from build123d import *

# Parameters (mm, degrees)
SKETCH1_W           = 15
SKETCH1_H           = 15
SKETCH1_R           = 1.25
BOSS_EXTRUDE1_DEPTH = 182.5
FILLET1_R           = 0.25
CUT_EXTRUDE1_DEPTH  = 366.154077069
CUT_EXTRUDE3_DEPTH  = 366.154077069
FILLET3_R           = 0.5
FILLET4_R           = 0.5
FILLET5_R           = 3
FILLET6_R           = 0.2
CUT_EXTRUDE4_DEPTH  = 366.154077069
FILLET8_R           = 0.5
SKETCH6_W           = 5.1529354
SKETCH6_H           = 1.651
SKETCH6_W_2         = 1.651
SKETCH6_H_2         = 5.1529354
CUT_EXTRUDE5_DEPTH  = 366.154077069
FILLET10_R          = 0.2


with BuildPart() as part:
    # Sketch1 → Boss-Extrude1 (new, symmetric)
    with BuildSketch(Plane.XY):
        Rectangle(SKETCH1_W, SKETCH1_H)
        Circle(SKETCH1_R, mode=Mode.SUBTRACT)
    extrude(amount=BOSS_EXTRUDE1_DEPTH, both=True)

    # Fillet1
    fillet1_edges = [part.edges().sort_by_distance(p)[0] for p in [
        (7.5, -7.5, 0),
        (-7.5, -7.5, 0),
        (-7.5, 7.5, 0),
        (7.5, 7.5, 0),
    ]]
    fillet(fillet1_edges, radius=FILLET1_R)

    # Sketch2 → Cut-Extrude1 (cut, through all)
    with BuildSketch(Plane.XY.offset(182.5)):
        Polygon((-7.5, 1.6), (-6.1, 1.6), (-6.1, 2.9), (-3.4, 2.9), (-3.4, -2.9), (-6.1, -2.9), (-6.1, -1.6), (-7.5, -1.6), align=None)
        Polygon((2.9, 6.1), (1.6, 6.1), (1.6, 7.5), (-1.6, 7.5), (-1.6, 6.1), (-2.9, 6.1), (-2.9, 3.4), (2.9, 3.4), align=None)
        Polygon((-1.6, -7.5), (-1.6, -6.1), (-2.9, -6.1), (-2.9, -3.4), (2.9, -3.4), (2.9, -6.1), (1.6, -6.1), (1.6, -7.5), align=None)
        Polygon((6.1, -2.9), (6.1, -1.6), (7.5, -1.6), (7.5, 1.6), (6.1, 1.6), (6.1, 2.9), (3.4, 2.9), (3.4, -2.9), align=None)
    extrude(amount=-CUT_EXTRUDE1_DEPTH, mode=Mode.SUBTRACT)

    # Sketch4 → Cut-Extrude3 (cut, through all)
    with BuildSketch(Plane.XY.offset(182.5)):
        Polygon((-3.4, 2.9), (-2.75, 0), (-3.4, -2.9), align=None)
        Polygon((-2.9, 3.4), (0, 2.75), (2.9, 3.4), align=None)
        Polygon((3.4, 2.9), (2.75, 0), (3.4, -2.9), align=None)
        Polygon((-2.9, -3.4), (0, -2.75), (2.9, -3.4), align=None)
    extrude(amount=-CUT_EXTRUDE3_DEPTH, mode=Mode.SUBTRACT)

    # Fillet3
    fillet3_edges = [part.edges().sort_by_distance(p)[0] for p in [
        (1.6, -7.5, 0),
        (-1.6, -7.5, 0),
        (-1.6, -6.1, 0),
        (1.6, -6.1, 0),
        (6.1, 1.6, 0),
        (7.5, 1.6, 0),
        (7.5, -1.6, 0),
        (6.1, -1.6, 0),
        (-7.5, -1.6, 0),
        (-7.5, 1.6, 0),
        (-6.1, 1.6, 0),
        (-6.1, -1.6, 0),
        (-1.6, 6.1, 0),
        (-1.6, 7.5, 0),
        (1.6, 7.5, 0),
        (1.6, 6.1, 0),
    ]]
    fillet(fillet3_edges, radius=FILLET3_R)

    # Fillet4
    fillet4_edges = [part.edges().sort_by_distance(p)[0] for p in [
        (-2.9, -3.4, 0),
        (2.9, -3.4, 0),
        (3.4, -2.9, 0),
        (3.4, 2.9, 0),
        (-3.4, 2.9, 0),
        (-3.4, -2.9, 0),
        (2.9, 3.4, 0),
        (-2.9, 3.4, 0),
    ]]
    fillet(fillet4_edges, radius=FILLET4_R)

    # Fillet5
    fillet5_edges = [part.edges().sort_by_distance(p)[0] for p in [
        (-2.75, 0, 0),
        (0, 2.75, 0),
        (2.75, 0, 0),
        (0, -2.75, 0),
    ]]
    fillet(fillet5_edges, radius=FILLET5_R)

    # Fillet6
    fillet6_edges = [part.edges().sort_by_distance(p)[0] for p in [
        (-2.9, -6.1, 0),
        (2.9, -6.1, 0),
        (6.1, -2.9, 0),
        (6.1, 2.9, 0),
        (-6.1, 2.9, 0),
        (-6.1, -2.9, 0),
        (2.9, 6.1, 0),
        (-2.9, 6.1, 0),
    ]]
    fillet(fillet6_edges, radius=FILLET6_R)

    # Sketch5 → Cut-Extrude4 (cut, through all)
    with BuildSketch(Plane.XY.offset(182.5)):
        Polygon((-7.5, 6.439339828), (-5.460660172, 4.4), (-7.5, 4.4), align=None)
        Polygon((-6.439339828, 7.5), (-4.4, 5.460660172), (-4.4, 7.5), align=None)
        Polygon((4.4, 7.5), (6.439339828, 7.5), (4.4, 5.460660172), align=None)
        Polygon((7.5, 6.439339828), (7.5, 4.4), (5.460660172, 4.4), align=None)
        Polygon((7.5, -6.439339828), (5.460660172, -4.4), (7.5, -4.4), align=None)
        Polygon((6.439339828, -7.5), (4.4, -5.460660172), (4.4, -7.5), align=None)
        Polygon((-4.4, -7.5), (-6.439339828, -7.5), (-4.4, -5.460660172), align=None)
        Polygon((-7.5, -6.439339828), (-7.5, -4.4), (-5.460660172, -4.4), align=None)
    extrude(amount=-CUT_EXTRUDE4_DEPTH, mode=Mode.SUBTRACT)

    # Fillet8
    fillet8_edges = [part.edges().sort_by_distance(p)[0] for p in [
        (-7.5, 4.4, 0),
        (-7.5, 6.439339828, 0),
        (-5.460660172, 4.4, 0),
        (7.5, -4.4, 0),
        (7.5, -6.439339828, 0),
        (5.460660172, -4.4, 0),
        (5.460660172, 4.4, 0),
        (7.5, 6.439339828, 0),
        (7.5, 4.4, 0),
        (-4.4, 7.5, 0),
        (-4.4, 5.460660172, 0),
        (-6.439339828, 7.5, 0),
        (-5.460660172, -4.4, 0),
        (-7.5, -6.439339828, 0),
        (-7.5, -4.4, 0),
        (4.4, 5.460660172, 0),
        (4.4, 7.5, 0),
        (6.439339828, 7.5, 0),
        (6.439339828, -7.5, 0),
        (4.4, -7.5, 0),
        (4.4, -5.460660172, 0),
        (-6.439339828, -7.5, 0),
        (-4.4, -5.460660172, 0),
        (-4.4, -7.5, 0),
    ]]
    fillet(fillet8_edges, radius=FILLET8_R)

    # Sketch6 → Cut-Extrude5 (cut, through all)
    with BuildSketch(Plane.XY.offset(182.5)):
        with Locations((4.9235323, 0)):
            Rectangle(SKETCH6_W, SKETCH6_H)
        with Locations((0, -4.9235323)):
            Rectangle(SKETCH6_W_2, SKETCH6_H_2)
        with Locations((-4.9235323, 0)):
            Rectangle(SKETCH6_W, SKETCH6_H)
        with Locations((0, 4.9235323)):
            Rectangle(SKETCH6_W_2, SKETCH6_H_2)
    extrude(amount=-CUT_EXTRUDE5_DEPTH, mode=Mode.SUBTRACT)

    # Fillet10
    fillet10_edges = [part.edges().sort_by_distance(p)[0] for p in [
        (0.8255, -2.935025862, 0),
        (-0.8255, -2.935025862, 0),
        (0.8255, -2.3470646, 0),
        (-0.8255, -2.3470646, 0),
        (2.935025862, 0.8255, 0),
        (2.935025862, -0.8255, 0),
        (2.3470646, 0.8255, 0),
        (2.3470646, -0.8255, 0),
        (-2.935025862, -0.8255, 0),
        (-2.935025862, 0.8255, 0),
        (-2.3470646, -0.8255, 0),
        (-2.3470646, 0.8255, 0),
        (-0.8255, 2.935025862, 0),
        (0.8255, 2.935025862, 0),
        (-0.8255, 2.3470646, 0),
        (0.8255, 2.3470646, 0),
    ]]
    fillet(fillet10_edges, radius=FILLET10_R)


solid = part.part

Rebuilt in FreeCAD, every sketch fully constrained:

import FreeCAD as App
import Part
import Sketcher
from FreeCAD import Vector


def edges_at(feature, points):
    """Names of the edges that pass closest to the given points."""
    edges = feature.Shape.Edges
    near = lambda p: min(range(len(edges)), key=lambda i: edges[i].distToShape(Part.Vertex(*p))[0])
    return sorted({f"Edge{near(p) + 1}" for p in points})

doc = App.newDocument("Part")
body = doc.addObject("PartDesign::Body", "Body")

# Sketch on XY plane
sketch1 = body.newObject("Sketcher::SketchObject", "Sketch")
sketch1.AttachmentSupport = (doc.getObject("XY_Plane"), [""])
sketch1.MapMode = "FlatFace"
sketch1.addGeometry(Part.LineSegment(Vector(-7.5, 7.5, 0), Vector(-7.5, -7.5, 0)), False)
sketch1.addGeometry(Part.LineSegment(Vector(-7.5, -7.5, 0), Vector(7.5, -7.5, 0)), False)
sketch1.addGeometry(Part.LineSegment(Vector(7.5, -7.5, 0), Vector(7.5, 7.5, 0)), False)
sketch1.addGeometry(Part.LineSegment(Vector(7.5, 7.5, 0), Vector(-7.5, 7.5, 0)), False)
sketch1.addGeometry(Part.Circle(Vector(0, 0, 0), Vector(0, 0, 1), 1.2), False)
sketch1.addConstraint(Sketcher.Constraint("Coincident", 0, 2, 1, 1))
sketch1.addConstraint(Sketcher.Constraint("Coincident", 1, 2, 2, 1))
sketch1.addConstraint(Sketcher.Constraint("Coincident", 2, 2, 3, 1))
sketch1.addConstraint(Sketcher.Constraint("Coincident", 3, 2, 0, 1))
sketch1.addConstraint(Sketcher.Constraint("Vertical", 0))
sketch1.addConstraint(Sketcher.Constraint("Horizontal", 1))
sketch1.addConstraint(Sketcher.Constraint("Vertical", 2))
sketch1.addConstraint(Sketcher.Constraint("Horizontal", 3))
sketch1.addConstraint(Sketcher.Constraint("Coincident", 4, 3, -1, 1))
sketch1.addConstraint(Sketcher.Constraint("Symmetric", 0, 2, 2, 2, -1, 1))
sketch1.addConstraint(Sketcher.Constraint("Equal", 3, 0))
sketch1.addConstraint(Sketcher.Constraint("Diameter", 4, 2.5))
sketch1.addConstraint(Sketcher.Constraint("DistanceX", 1, 1, 1, 2, 15.0))
pad1 = body.newObject("PartDesign::Pad", "Pad")
pad1.Profile = sketch1
pad1.Length = 365
pad1.Midplane = True
doc.recompute()

fillet = body.newObject("PartDesign::Fillet", "Fillet")
fillet.Base = (pad1, edges_at(pad1, [
    (7.5, -7.5, 0),
    (-7.5, -7.5, 0),
    (-7.5, 7.5, 0),
    (7.5, 7.5, 0),
]))
fillet.Radius = 0.25

# Sketch on XY plane
sketch2 = body.newObject("Sketcher::SketchObject", "Sketch001")
sketch2.AttachmentSupport = (doc.getObject("XY_Plane"), [""])
sketch2.MapMode = "FlatFace"
sketch2.AttachmentOffset = App.Placement(Vector(0, 0, 182.5), App.Rotation())
sketch2.addGeometry(Part.LineSegment(Vector(-6.1, 1.6, 0), Vector(-7.5, 1.6, 0)), False)
sketch2.addGeometry(Part.LineSegment(Vector(-7.5, 1.6, 0), Vector(-7.5, -1.6, 0)), False)
sketch2.addGeometry(Part.LineSegment(Vector(-7.5, -1.6, 0), Vector(-6.1, -1.6, 0)), False)
sketch2.addGeometry(Part.LineSegment(Vector(-6.1, -1.6, 0), Vector(-6.1, -2.9, 0)), False)
sketch2.addGeometry(Part.LineSegment(Vector(-6.1, -2.9, 0), Vector(-3.4, -2.9, 0)), False)
sketch2.addGeometry(Part.LineSegment(Vector(-3.4, -2.9, 0), Vector(-3.4, 2.9, 0)), False)
sketch2.addGeometry(Part.LineSegment(Vector(-3.4, 2.9, 0), Vector(-6.1, 2.9, 0)), False)
sketch2.addGeometry(Part.LineSegment(Vector(-6.1, 2.9, 0), Vector(-6.1, 1.6, 0)), False)
sketch2.addGeometry(Part.LineSegment(Vector(2.9, 6.1, 0), Vector(1.6, 6.1, 0)), False)
sketch2.addGeometry(Part.LineSegment(Vector(1.6, 6.1, 0), Vector(1.6, 7.5, 0)), False)
sketch2.addGeometry(Part.LineSegment(Vector(1.6, 7.5, 0), Vector(-1.6, 7.5, 0)), False)
sketch2.addGeometry(Part.LineSegment(Vector(-1.6, 7.5, 0), Vector(-1.6, 6.1, 0)), False)
sketch2.addGeometry(Part.LineSegment(Vector(-1.6, 6.1, 0), Vector(-2.9, 6.1, 0)), False)
sketch2.addGeometry(Part.LineSegment(Vector(-2.9, 6.1, 0), Vector(-2.9, 3.4, 0)), False)
sketch2.addGeometry(Part.LineSegment(Vector(-2.9, 3.4, 0), Vector(2.9, 3.4, 0)), False)
sketch2.addGeometry(Part.LineSegment(Vector(2.9, 3.4, 0), Vector(2.9, 6.1, 0)), False)
sketch2.addGeometry(Part.LineSegment(Vector(-1.6, -6.1, 0), Vector(-1.6, -7.5, 0)), False)
sketch2.addGeometry(Part.LineSegment(Vector(-1.6, -7.5, 0), Vector(1.6, -7.5, 0)), False)
sketch2.addGeometry(Part.LineSegment(Vector(1.6, -7.5, 0), Vector(1.6, -6.1, 0)), False)
sketch2.addGeometry(Part.LineSegment(Vector(1.6, -6.1, 0), Vector(2.9, -6.1, 0)), False)
sketch2.addGeometry(Part.LineSegment(Vector(2.9, -6.1, 0), Vector(2.9, -3.4, 0)), False)
sketch2.addGeometry(Part.LineSegment(Vector(2.9, -3.4, 0), Vector(-2.9, -3.4, 0)), False)
sketch2.addGeometry(Part.LineSegment(Vector(-2.9, -3.4, 0), Vector(-2.9, -6.1, 0)), False)
sketch2.addGeometry(Part.LineSegment(Vector(-2.9, -6.1, 0), Vector(-1.6, -6.1, 0)), False)
sketch2.addGeometry(Part.LineSegment(Vector(6.1, -2.9, 0), Vector(6.1, -1.6, 0)), False)
sketch2.addGeometry(Part.LineSegment(Vector(6.1, -1.6, 0), Vector(7.5, -1.6, 0)), False)
sketch2.addGeometry(Part.LineSegment(Vector(7.5, -1.6, 0), Vector(7.5, 1.6, 0)), False)
sketch2.addGeometry(Part.LineSegment(Vector(7.5, 1.6, 0), Vector(6.1, 1.6, 0)), False)
sketch2.addGeometry(Part.LineSegment(Vector(6.1, 1.6, 0), Vector(6.1, 2.9, 0)), False)
sketch2.addGeometry(Part.LineSegment(Vector(6.1, 2.9, 0), Vector(3.4, 2.9, 0)), False)
sketch2.addGeometry(Part.LineSegment(Vector(3.4, 2.9, 0), Vector(3.4, -2.9, 0)), False)
sketch2.addGeometry(Part.LineSegment(Vector(3.4, -2.9, 0), Vector(6.1, -2.9, 0)), False)
sketch2.addConstraint(Sketcher.Constraint("Coincident", 0, 2, 1, 1))
sketch2.addConstraint(Sketcher.Constraint("Coincident", 1, 2, 2, 1))
sketch2.addConstraint(Sketcher.Constraint("Coincident", 2, 2, 3, 1))
sketch2.addConstraint(Sketcher.Constraint("Coincident", 3, 2, 4, 1))
sketch2.addConstraint(Sketcher.Constraint("Coincident", 4, 2, 5, 1))
sketch2.addConstraint(Sketcher.Constraint("Coincident", 5, 2, 6, 1))
sketch2.addConstraint(Sketcher.Constraint("Coincident", 6, 2, 7, 1))
sketch2.addConstraint(Sketcher.Constraint("Coincident", 7, 2, 0, 1))
sketch2.addConstraint(Sketcher.Constraint("Coincident", 8, 2, 9, 1))
sketch2.addConstraint(Sketcher.Constraint("Coincident", 9, 2, 10, 1))
sketch2.addConstraint(Sketcher.Constraint("Coincident", 10, 2, 11, 1))
sketch2.addConstraint(Sketcher.Constraint("Coincident", 11, 2, 12, 1))
sketch2.addConstraint(Sketcher.Constraint("Coincident", 12, 2, 13, 1))
sketch2.addConstraint(Sketcher.Constraint("Coincident", 13, 2, 14, 1))
sketch2.addConstraint(Sketcher.Constraint("Coincident", 14, 2, 15, 1))
sketch2.addConstraint(Sketcher.Constraint("Coincident", 15, 2, 8, 1))
sketch2.addConstraint(Sketcher.Constraint("Coincident", 16, 2, 17, 1))
sketch2.addConstraint(Sketcher.Constraint("Coincident", 17, 2, 18, 1))
sketch2.addConstraint(Sketcher.Constraint("Coincident", 18, 2, 19, 1))
sketch2.addConstraint(Sketcher.Constraint("Coincident", 19, 2, 20, 1))
sketch2.addConstraint(Sketcher.Constraint("Coincident", 20, 2, 21, 1))
sketch2.addConstraint(Sketcher.Constraint("Coincident", 21, 2, 22, 1))
sketch2.addConstraint(Sketcher.Constraint("Coincident", 22, 2, 23, 1))
sketch2.addConstraint(Sketcher.Constraint("Coincident", 23, 2, 16, 1))
sketch2.addConstraint(Sketcher.Constraint("Coincident", 24, 2, 25, 1))
sketch2.addConstraint(Sketcher.Constraint("Coincident", 25, 2, 26, 1))
sketch2.addConstraint(Sketcher.Constraint("Coincident", 26, 2, 27, 1))
sketch2.addConstraint(Sketcher.Constraint("Coincident", 27, 2, 28, 1))
sketch2.addConstraint(Sketcher.Constraint("Coincident", 28, 2, 29, 1))
sketch2.addConstraint(Sketcher.Constraint("Coincident", 29, 2, 30, 1))
sketch2.addConstraint(Sketcher.Constraint("Coincident", 30, 2, 31, 1))
sketch2.addConstraint(Sketcher.Constraint("Coincident", 31, 2, 24, 1))
sketch2.addConstraint(Sketcher.Constraint("Horizontal", 0))
sketch2.addConstraint(Sketcher.Constraint("Vertical", 1))
sketch2.addConstraint(Sketcher.Constraint("Horizontal", 2))
sketch2.addConstraint(Sketcher.Constraint("Vertical", 3))
sketch2.addConstraint(Sketcher.Constraint("Horizontal", 4))
sketch2.addConstraint(Sketcher.Constraint("Vertical", 5))
sketch2.addConstraint(Sketcher.Constraint("Horizontal", 6))
sketch2.addConstraint(Sketcher.Constraint("Vertical", 7))
sketch2.addConstraint(Sketcher.Constraint("Horizontal", 8))
sketch2.addConstraint(Sketcher.Constraint("Vertical", 9))
sketch2.addConstraint(Sketcher.Constraint("Horizontal", 10))
sketch2.addConstraint(Sketcher.Constraint("Vertical", 11))
sketch2.addConstraint(Sketcher.Constraint("Horizontal", 12))
sketch2.addConstraint(Sketcher.Constraint("Vertical", 13))
sketch2.addConstraint(Sketcher.Constraint("Horizontal", 14))
sketch2.addConstraint(Sketcher.Constraint("Vertical", 15))
sketch2.addConstraint(Sketcher.Constraint("Vertical", 16))
sketch2.addConstraint(Sketcher.Constraint("Horizontal", 17))
sketch2.addConstraint(Sketcher.Constraint("Vertical", 18))
sketch2.addConstraint(Sketcher.Constraint("Horizontal", 19))
sketch2.addConstraint(Sketcher.Constraint("Vertical", 20))
sketch2.addConstraint(Sketcher.Constraint("Horizontal", 21))
sketch2.addConstraint(Sketcher.Constraint("Vertical", 22))
sketch2.addConstraint(Sketcher.Constraint("Horizontal", 23))
sketch2.addConstraint(Sketcher.Constraint("Vertical", 24))
sketch2.addConstraint(Sketcher.Constraint("Horizontal", 25))
sketch2.addConstraint(Sketcher.Constraint("Vertical", 26))
sketch2.addConstraint(Sketcher.Constraint("Horizontal", 27))
sketch2.addConstraint(Sketcher.Constraint("Vertical", 28))
sketch2.addConstraint(Sketcher.Constraint("Horizontal", 29))
sketch2.addConstraint(Sketcher.Constraint("Vertical", 30))
sketch2.addConstraint(Sketcher.Constraint("Horizontal", 31))
sketch2.addConstraint(Sketcher.Constraint("Symmetric", 9, 2, 16, 2, -1, 1))
sketch2.addConstraint(Sketcher.Constraint("Symmetric", 11, 2, 18, 2, -1, 1))
sketch2.addConstraint(Sketcher.Constraint("Symmetric", 13, 2, 20, 2, -1, 1))
sketch2.addConstraint(Sketcher.Constraint("Symmetric", 15, 2, 22, 2, -1, 1))
sketch2.addConstraint(Sketcher.Constraint("Symmetric", 7, 2, 24, 2, -1, 1))
sketch2.addConstraint(Sketcher.Constraint("Symmetric", 1, 2, 26, 2, -1, 1))
sketch2.addConstraint(Sketcher.Constraint("Symmetric", 3, 2, 28, 2, -1, 1))
sketch2.addConstraint(Sketcher.Constraint("Symmetric", 5, 2, 30, 2, -1, 1))
sketch2.addConstraint(Sketcher.Constraint("Symmetric", 8, 2, 11, 2, -2))
sketch2.addConstraint(Sketcher.Constraint("Symmetric", 2, 2, 24, 2, -2))
sketch2.addConstraint(Sketcher.Constraint("Horizontal", 6, 2, 28, 2))
sketch2.addConstraint(Sketcher.Constraint("Vertical", 15, 2, 19, 2))
sketch2.addConstraint(Sketcher.Constraint("Equal", 17, 1))
sketch2.addConstraint(Sketcher.Constraint("Equal", 23, 3))
sketch2.addConstraint(Sketcher.Constraint("Equal", 27, 9))
sketch2.addConstraint(Sketcher.Constraint("Equal", 31, 13))
sketch2.addConstraint(Sketcher.Constraint("DistanceX", 0, 2, 0, 1, 1.4))
sketch2.addConstraint(Sketcher.Constraint("DistanceX", 4, 1, 4, 2, 2.7))
sketch2.addConstraint(Sketcher.Constraint("DistanceX", 8, 2, 8, 1, 1.3))
sketch2.addConstraint(Sketcher.Constraint("DistanceX", 10, 2, 10, 1, 3.2))
sketch2.addConstraint(Sketcher.Constraint("DistanceX", 5, 2, 8, 2, 5.0))
sketch2.addConstraint(Sketcher.Constraint("DistanceY", 4, 2, 8, 2, 9.0))
pocket1 = body.newObject("PartDesign::Pocket", "Pocket")
pocket1.Profile = sketch2
pocket1.Type = "ThroughAll"

# Sketch on XY plane
sketch3 = body.newObject("Sketcher::SketchObject", "Sketch002")
sketch3.AttachmentSupport = (doc.getObject("XY_Plane"), [""])
sketch3.MapMode = "FlatFace"
sketch3.AttachmentOffset = App.Placement(Vector(0, 0, 182.5), App.Rotation())
sketch3.addGeometry(Part.LineSegment(Vector(-2.8, 0, 0), Vector(-3.4, 2.9, 0)), False)
sketch3.addGeometry(Part.LineSegment(Vector(-3.4, 2.9, 0), Vector(-3.4, -2.9, 0)), False)
sketch3.addGeometry(Part.LineSegment(Vector(-3.4, -2.9, 0), Vector(-2.8, 0, 0)), False)
sketch3.addGeometry(Part.LineSegment(Vector(-2.9, 3.4, 0), Vector(0, 2.8, 0)), False)
sketch3.addGeometry(Part.LineSegment(Vector(0, 2.8, 0), Vector(2.9, 3.4, 0)), False)
sketch3.addGeometry(Part.LineSegment(Vector(2.9, 3.4, 0), Vector(-2.9, 3.4, 0)), False)
sketch3.addGeometry(Part.LineSegment(Vector(3.4, 2.9, 0), Vector(2.8, 0, 0)), False)
sketch3.addGeometry(Part.LineSegment(Vector(2.8, 0, 0), Vector(3.4, -2.9, 0)), False)
sketch3.addGeometry(Part.LineSegment(Vector(3.4, -2.9, 0), Vector(3.4, 2.9, 0)), False)
sketch3.addGeometry(Part.LineSegment(Vector(0, -2.8, 0), Vector(-2.9, -3.4, 0)), False)
sketch3.addGeometry(Part.LineSegment(Vector(-2.9, -3.4, 0), Vector(2.9, -3.4, 0)), False)
sketch3.addGeometry(Part.LineSegment(Vector(2.9, -3.4, 0), Vector(0, -2.8, 0)), False)
sketch3.addConstraint(Sketcher.Constraint("Coincident", 0, 2, 1, 1))
sketch3.addConstraint(Sketcher.Constraint("Coincident", 1, 2, 2, 1))
sketch3.addConstraint(Sketcher.Constraint("Coincident", 2, 2, 0, 1))
sketch3.addConstraint(Sketcher.Constraint("Coincident", 3, 2, 4, 1))
sketch3.addConstraint(Sketcher.Constraint("Coincident", 4, 2, 5, 1))
sketch3.addConstraint(Sketcher.Constraint("Coincident", 5, 2, 3, 1))
sketch3.addConstraint(Sketcher.Constraint("Coincident", 6, 2, 7, 1))
sketch3.addConstraint(Sketcher.Constraint("Coincident", 7, 2, 8, 1))
sketch3.addConstraint(Sketcher.Constraint("Coincident", 8, 2, 6, 1))
sketch3.addConstraint(Sketcher.Constraint("Coincident", 9, 2, 10, 1))
sketch3.addConstraint(Sketcher.Constraint("Coincident", 10, 2, 11, 1))
sketch3.addConstraint(Sketcher.Constraint("Coincident", 11, 2, 9, 1))
sketch3.addConstraint(Sketcher.Constraint("Vertical", 1))
sketch3.addConstraint(Sketcher.Constraint("Horizontal", 5))
sketch3.addConstraint(Sketcher.Constraint("Vertical", 8))
sketch3.addConstraint(Sketcher.Constraint("Horizontal", 10))
sketch3.addConstraint(Sketcher.Constraint("Symmetric", 2, 2, 6, 2, -1, 1))
sketch3.addConstraint(Sketcher.Constraint("Symmetric", 0, 2, 7, 2, -1, 1))
sketch3.addConstraint(Sketcher.Constraint("Symmetric", 4, 2, 9, 2, -1, 1))
sketch3.addConstraint(Sketcher.Constraint("Symmetric", 3, 2, 11, 2, -1, 1))
sketch3.addConstraint(Sketcher.Constraint("PointOnObject", 2, 2, -1))
sketch3.addConstraint(Sketcher.Constraint("PointOnObject", 3, 2, -2))
sketch3.addConstraint(Sketcher.Constraint("Perpendicular", 2, 3))
sketch3.addConstraint(Sketcher.Constraint("Perpendicular", 0, 4))
sketch3.addConstraint(Sketcher.Constraint("Perpendicular", 3, 6))
sketch3.addConstraint(Sketcher.Constraint("Perpendicular", 6, 11))
sketch3.addConstraint(Sketcher.Constraint("Horizontal", 1, 2, 7, 2))
sketch3.addConstraint(Sketcher.Constraint("Equal", 10, 1))
sketch3.addConstraint(Sketcher.Constraint("DistanceX", 5, 2, 5, 1, 5.8))
sketch3.addConstraint(Sketcher.Constraint("DistanceX", 0, 2, -1, 1, 3.4))
sketch3.addConstraint(Sketcher.Constraint("DistanceY", -1, 1, 4, 2, 3.4))
sketch3.addConstraint(Sketcher.Constraint("DistanceX", 2, 2, 6, 2, 5.5))
pocket2 = body.newObject("PartDesign::Pocket", "Pocket001")
pocket2.Profile = sketch3
pocket2.Type = "ThroughAll"
doc.recompute()

fillet2 = body.newObject("PartDesign::Fillet", "Fillet001")
fillet2.Base = (pocket2, edges_at(pocket2, [
    (1.6, -7.5, 0),
    (-1.6, -7.5, 0),
    (-1.6, -6.1, 0),
    (1.6, -6.1, 0),
    (6.1, 1.6, 0),
    (7.5, 1.6, 0),
    (7.5, -1.6, 0),
    (6.1, -1.6, 0),
    (-7.5, -1.6, 0),
    (-7.5, 1.6, 0),
    (-6.1, 1.6, 0),
    (-6.1, -1.6, 0),
    (-1.6, 6.1, 0),
    (-1.6, 7.5, 0),
    (1.6, 7.5, 0),
    (1.6, 6.1, 0),
]))
fillet2.Radius = 0.5
doc.recompute()

fillet3 = body.newObject("PartDesign::Fillet", "Fillet002")
fillet3.Base = (fillet2, edges_at(fillet2, [
    (-2.9, -3.4, 0),
    (2.9, -3.4, 0),
    (3.4, -2.9, 0),
    (3.4, 2.9, 0),
    (-3.4, 2.9, 0),
    (-3.4, -2.9, 0),
    (2.9, 3.4, 0),
    (-2.9, 3.4, 0),
]))
fillet3.Radius = 0.5
doc.recompute()

fillet4 = body.newObject("PartDesign::Fillet", "Fillet003")
fillet4.Base = (fillet3, edges_at(fillet3, [
    (-2.75, 0, 0),
    (0, 2.75, 0),
    (2.75, 0, 0),
    (0, -2.75, 0),
]))
fillet4.Radius = 3
doc.recompute()

fillet5 = body.newObject("PartDesign::Fillet", "Fillet004")
fillet5.Base = (fillet4, edges_at(fillet4, [
    (-2.9, -6.1, 0),
    (2.9, -6.1, 0),
    (6.1, -2.9, 0),
    (6.1, 2.9, 0),
    (-6.1, 2.9, 0),
    (-6.1, -2.9, 0),
    (2.9, 6.1, 0),
    (-2.9, 6.1, 0),
]))
fillet5.Radius = 0.2

# Sketch on XY plane
sketch4 = body.newObject("Sketcher::SketchObject", "Sketch003")
sketch4.AttachmentSupport = (doc.getObject("XY_Plane"), [""])
sketch4.MapMode = "FlatFace"
sketch4.AttachmentOffset = App.Placement(Vector(0, 0, 182.5), App.Rotation())
sketch4.addGeometry(Part.LineSegment(Vector(-5.5, 4.4, 0), Vector(-7.5, 6.4, 0)), False)
sketch4.addGeometry(Part.LineSegment(Vector(-7.5, 6.4, 0), Vector(-7.5, 4.4, 0)), False)
sketch4.addGeometry(Part.LineSegment(Vector(-7.5, 4.4, 0), Vector(-5.5, 4.4, 0)), False)
sketch4.addGeometry(Part.LineSegment(Vector(-6.4, 7.5, 0), Vector(-4.4, 5.5, 0)), False)
sketch4.addGeometry(Part.LineSegment(Vector(-4.4, 5.5, 0), Vector(-4.4, 7.5, 0)), False)
sketch4.addGeometry(Part.LineSegment(Vector(-4.4, 7.5, 0), Vector(-6.4, 7.5, 0)), False)
sketch4.addGeometry(Part.LineSegment(Vector(6.4, 7.5, 0), Vector(4.4, 7.5, 0)), False)
sketch4.addGeometry(Part.LineSegment(Vector(4.4, 7.5, 0), Vector(4.4, 5.5, 0)), False)
sketch4.addGeometry(Part.LineSegment(Vector(4.4, 5.5, 0), Vector(6.4, 7.5, 0)), False)
sketch4.addGeometry(Part.LineSegment(Vector(7.5, 4.4, 0), Vector(7.5, 6.4, 0)), False)
sketch4.addGeometry(Part.LineSegment(Vector(7.5, 6.4, 0), Vector(5.5, 4.4, 0)), False)
sketch4.addGeometry(Part.LineSegment(Vector(5.5, 4.4, 0), Vector(7.5, 4.4, 0)), False)
sketch4.addGeometry(Part.LineSegment(Vector(5.5, -4.4, 0), Vector(7.5, -6.4, 0)), False)
sketch4.addGeometry(Part.LineSegment(Vector(7.5, -6.4, 0), Vector(7.5, -4.4, 0)), False)
sketch4.addGeometry(Part.LineSegment(Vector(7.5, -4.4, 0), Vector(5.5, -4.4, 0)), False)
sketch4.addGeometry(Part.LineSegment(Vector(6.4, -7.5, 0), Vector(4.4, -5.5, 0)), False)
sketch4.addGeometry(Part.LineSegment(Vector(4.4, -5.5, 0), Vector(4.4, -7.5, 0)), False)
sketch4.addGeometry(Part.LineSegment(Vector(4.4, -7.5, 0), Vector(6.4, -7.5, 0)), False)
sketch4.addGeometry(Part.LineSegment(Vector(-6.4, -7.5, 0), Vector(-4.4, -7.5, 0)), False)
sketch4.addGeometry(Part.LineSegment(Vector(-4.4, -7.5, 0), Vector(-4.4, -5.5, 0)), False)
sketch4.addGeometry(Part.LineSegment(Vector(-4.4, -5.5, 0), Vector(-6.4, -7.5, 0)), False)
sketch4.addGeometry(Part.LineSegment(Vector(-7.5, -4.4, 0), Vector(-7.5, -6.4, 0)), False)
sketch4.addGeometry(Part.LineSegment(Vector(-7.5, -6.4, 0), Vector(-5.5, -4.4, 0)), False)
sketch4.addGeometry(Part.LineSegment(Vector(-5.5, -4.4, 0), Vector(-7.5, -4.4, 0)), False)
sketch4.addConstraint(Sketcher.Constraint("Coincident", 0, 2, 1, 1))
sketch4.addConstraint(Sketcher.Constraint("Coincident", 1, 2, 2, 1))
sketch4.addConstraint(Sketcher.Constraint("Coincident", 2, 2, 0, 1))
sketch4.addConstraint(Sketcher.Constraint("Coincident", 3, 2, 4, 1))
sketch4.addConstraint(Sketcher.Constraint("Coincident", 4, 2, 5, 1))
sketch4.addConstraint(Sketcher.Constraint("Coincident", 5, 2, 3, 1))
sketch4.addConstraint(Sketcher.Constraint("Coincident", 6, 2, 7, 1))
sketch4.addConstraint(Sketcher.Constraint("Coincident", 7, 2, 8, 1))
sketch4.addConstraint(Sketcher.Constraint("Coincident", 8, 2, 6, 1))
sketch4.addConstraint(Sketcher.Constraint("Coincident", 9, 2, 10, 1))
sketch4.addConstraint(Sketcher.Constraint("Coincident", 10, 2, 11, 1))
sketch4.addConstraint(Sketcher.Constraint("Coincident", 11, 2, 9, 1))
sketch4.addConstraint(Sketcher.Constraint("Coincident", 12, 2, 13, 1))
sketch4.addConstraint(Sketcher.Constraint("Coincident", 13, 2, 14, 1))
sketch4.addConstraint(Sketcher.Constraint("Coincident", 14, 2, 12, 1))
sketch4.addConstraint(Sketcher.Constraint("Coincident", 15, 2, 16, 1))
sketch4.addConstraint(Sketcher.Constraint("Coincident", 16, 2, 17, 1))
sketch4.addConstraint(Sketcher.Constraint("Coincident", 17, 2, 15, 1))
sketch4.addConstraint(Sketcher.Constraint("Coincident", 18, 2, 19, 1))
sketch4.addConstraint(Sketcher.Constraint("Coincident", 19, 2, 20, 1))
sketch4.addConstraint(Sketcher.Constraint("Coincident", 20, 2, 18, 1))
sketch4.addConstraint(Sketcher.Constraint("Coincident", 21, 2, 22, 1))
sketch4.addConstraint(Sketcher.Constraint("Coincident", 22, 2, 23, 1))
sketch4.addConstraint(Sketcher.Constraint("Coincident", 23, 2, 21, 1))
sketch4.addConstraint(Sketcher.Constraint("Vertical", 1))
sketch4.addConstraint(Sketcher.Constraint("Horizontal", 2))
sketch4.addConstraint(Sketcher.Constraint("Vertical", 4))
sketch4.addConstraint(Sketcher.Constraint("Horizontal", 5))
sketch4.addConstraint(Sketcher.Constraint("Horizontal", 6))
sketch4.addConstraint(Sketcher.Constraint("Vertical", 7))
sketch4.addConstraint(Sketcher.Constraint("Vertical", 9))
sketch4.addConstraint(Sketcher.Constraint("Horizontal", 11))
sketch4.addConstraint(Sketcher.Constraint("Vertical", 13))
sketch4.addConstraint(Sketcher.Constraint("Horizontal", 14))
sketch4.addConstraint(Sketcher.Constraint("Vertical", 16))
sketch4.addConstraint(Sketcher.Constraint("Horizontal", 17))
sketch4.addConstraint(Sketcher.Constraint("Horizontal", 18))
sketch4.addConstraint(Sketcher.Constraint("Vertical", 19))
sketch4.addConstraint(Sketcher.Constraint("Vertical", 21))
sketch4.addConstraint(Sketcher.Constraint("Horizontal", 23))
sketch4.addConstraint(Sketcher.Constraint("Symmetric", 0, 2, 12, 2, -1, 1))
sketch4.addConstraint(Sketcher.Constraint("Symmetric", 2, 2, 14, 2, -1, 1))
sketch4.addConstraint(Sketcher.Constraint("Symmetric", 3, 2, 15, 2, -1, 1))
sketch4.addConstraint(Sketcher.Constraint("Symmetric", 5, 2, 17, 2, -1, 1))
sketch4.addConstraint(Sketcher.Constraint("Symmetric", 6, 2, 18, 2, -1, 1))
sketch4.addConstraint(Sketcher.Constraint("Symmetric", 9, 2, 21, 2, -1, 1))
sketch4.addConstraint(Sketcher.Constraint("Symmetric", 10, 2, 22, 2, -1, 1))
sketch4.addConstraint(Sketcher.Constraint("Symmetric", 4, 2, 6, 2, -2))
sketch4.addConstraint(Sketcher.Constraint("Symmetric", 0, 2, 9, 2, -2))
sketch4.addConstraint(Sketcher.Constraint("Symmetric", 2, 2, 10, 2, -2))
sketch4.addConstraint(Sketcher.Constraint("Parallel", 0, 3))
sketch4.addConstraint(Sketcher.Constraint("Perpendicular", 3, 8))
sketch4.addConstraint(Sketcher.Constraint("Parallel", 8, 10))
sketch4.addConstraint(Sketcher.Constraint("Perpendicular", 15, 20))
sketch4.addConstraint(Sketcher.Constraint("Horizontal", 3, 2, 7, 2))
sketch4.addConstraint(Sketcher.Constraint("Horizontal", 15, 2, 19, 2))
sketch4.addConstraint(Sketcher.Constraint("Equal", 2, 5))
sketch4.addConstraint(Sketcher.Constraint("DistanceX", 0, 2, -1, 1, 7.5))
sketch4.addConstraint(Sketcher.Constraint("DistanceY", -1, 1, 1, 2, 4.4))
sketch4.addConstraint(Sketcher.Constraint("DistanceX", 3, 2, -1, 1, 4.4))
sketch4.addConstraint(Sketcher.Constraint("DistanceY", -1, 1, 4, 2, 7.5))
sketch4.addConstraint(Sketcher.Constraint("DistanceX", 2, 1, 2, 2, 2.03934))
pocket3 = body.newObject("PartDesign::Pocket", "Pocket002")
pocket3.Profile = sketch4
pocket3.Type = "ThroughAll"
doc.recompute()

fillet6 = body.newObject("PartDesign::Fillet", "Fillet005")
fillet6.Base = (pocket3, edges_at(pocket3, [
    (-7.5, 4.4, 0),
    (-7.5, 6.439, 0),
    (-5.461, 4.4, 0),
    (7.5, -4.4, 0),
    (7.5, -6.439, 0),
    (5.461, -4.4, 0),
    (5.461, 4.4, 0),
    (7.5, 6.439, 0),
    (7.5, 4.4, 0),
    (-4.4, 7.5, 0),
    (-4.4, 5.461, 0),
    (-6.439, 7.5, 0),
    (-5.461, -4.4, 0),
    (-7.5, -6.439, 0),
    (-7.5, -4.4, 0),
    (4.4, 5.461, 0),
    (4.4, 7.5, 0),
    (6.439, 7.5, 0),
    (6.439, -7.5, 0),
    (4.4, -7.5, 0),
    (4.4, -5.461, 0),
    (-6.439, -7.5, 0),
    (-4.4, -5.461, 0),
    (-4.4, -7.5, 0),
]))
fillet6.Radius = 0.5

# Sketch on XY plane
sketch5 = body.newObject("Sketcher::SketchObject", "Sketch004")
sketch5.AttachmentSupport = (doc.getObject("XY_Plane"), [""])
sketch5.MapMode = "FlatFace"
sketch5.AttachmentOffset = App.Placement(Vector(0, 0, 182.5), App.Rotation())
sketch5.addGeometry(Part.LineSegment(Vector(2.3, 0.8, 0), Vector(2.3, -0.8, 0)), False)
sketch5.addGeometry(Part.LineSegment(Vector(2.3, -0.8, 0), Vector(7.5, -0.8, 0)), False)
sketch5.addGeometry(Part.LineSegment(Vector(7.5, -0.8, 0), Vector(7.5, 0.8, 0)), False)
sketch5.addGeometry(Part.LineSegment(Vector(7.5, 0.8, 0), Vector(2.3, 0.8, 0)), False)
sketch5.addGeometry(Part.LineSegment(Vector(-0.8, -2.3, 0), Vector(-0.8, -7.5, 0)), False)
sketch5.addGeometry(Part.LineSegment(Vector(-0.8, -7.5, 0), Vector(0.8, -7.5, 0)), False)
sketch5.addGeometry(Part.LineSegment(Vector(0.8, -7.5, 0), Vector(0.8, -2.3, 0)), False)
sketch5.addGeometry(Part.LineSegment(Vector(0.8, -2.3, 0), Vector(-0.8, -2.3, 0)), False)
sketch5.addGeometry(Part.LineSegment(Vector(-7.5, 0.8, 0), Vector(-7.5, -0.8, 0)), False)
sketch5.addGeometry(Part.LineSegment(Vector(-7.5, -0.8, 0), Vector(-2.3, -0.8, 0)), False)
sketch5.addGeometry(Part.LineSegment(Vector(-2.3, -0.8, 0), Vector(-2.3, 0.8, 0)), False)
sketch5.addGeometry(Part.LineSegment(Vector(-2.3, 0.8, 0), Vector(-7.5, 0.8, 0)), False)
sketch5.addGeometry(Part.LineSegment(Vector(-0.8, 7.5, 0), Vector(-0.8, 2.3, 0)), False)
sketch5.addGeometry(Part.LineSegment(Vector(-0.8, 2.3, 0), Vector(0.8, 2.3, 0)), False)
sketch5.addGeometry(Part.LineSegment(Vector(0.8, 2.3, 0), Vector(0.8, 7.5, 0)), False)
sketch5.addGeometry(Part.LineSegment(Vector(0.8, 7.5, 0), Vector(-0.8, 7.5, 0)), False)
sketch5.addConstraint(Sketcher.Constraint("Coincident", 0, 2, 1, 1))
sketch5.addConstraint(Sketcher.Constraint("Coincident", 1, 2, 2, 1))
sketch5.addConstraint(Sketcher.Constraint("Coincident", 2, 2, 3, 1))
sketch5.addConstraint(Sketcher.Constraint("Coincident", 3, 2, 0, 1))
sketch5.addConstraint(Sketcher.Constraint("Coincident", 4, 2, 5, 1))
sketch5.addConstraint(Sketcher.Constraint("Coincident", 5, 2, 6, 1))
sketch5.addConstraint(Sketcher.Constraint("Coincident", 6, 2, 7, 1))
sketch5.addConstraint(Sketcher.Constraint("Coincident", 7, 2, 4, 1))
sketch5.addConstraint(Sketcher.Constraint("Coincident", 8, 2, 9, 1))
sketch5.addConstraint(Sketcher.Constraint("Coincident", 9, 2, 10, 1))
sketch5.addConstraint(Sketcher.Constraint("Coincident", 10, 2, 11, 1))
sketch5.addConstraint(Sketcher.Constraint("Coincident", 11, 2, 8, 1))
sketch5.addConstraint(Sketcher.Constraint("Coincident", 12, 2, 13, 1))
sketch5.addConstraint(Sketcher.Constraint("Coincident", 13, 2, 14, 1))
sketch5.addConstraint(Sketcher.Constraint("Coincident", 14, 2, 15, 1))
sketch5.addConstraint(Sketcher.Constraint("Coincident", 15, 2, 12, 1))
sketch5.addConstraint(Sketcher.Constraint("Vertical", 0))
sketch5.addConstraint(Sketcher.Constraint("Horizontal", 1))
sketch5.addConstraint(Sketcher.Constraint("Vertical", 2))
sketch5.addConstraint(Sketcher.Constraint("Horizontal", 3))
sketch5.addConstraint(Sketcher.Constraint("Vertical", 4))
sketch5.addConstraint(Sketcher.Constraint("Horizontal", 5))
sketch5.addConstraint(Sketcher.Constraint("Vertical", 6))
sketch5.addConstraint(Sketcher.Constraint("Horizontal", 7))
sketch5.addConstraint(Sketcher.Constraint("Vertical", 8))
sketch5.addConstraint(Sketcher.Constraint("Horizontal", 9))
sketch5.addConstraint(Sketcher.Constraint("Vertical", 10))
sketch5.addConstraint(Sketcher.Constraint("Horizontal", 11))
sketch5.addConstraint(Sketcher.Constraint("Vertical", 12))
sketch5.addConstraint(Sketcher.Constraint("Horizontal", 13))
sketch5.addConstraint(Sketcher.Constraint("Vertical", 14))
sketch5.addConstraint(Sketcher.Constraint("Horizontal", 15))
sketch5.addConstraint(Sketcher.Constraint("Symmetric", 2, 2, 8, 2, -1, 1))
sketch5.addConstraint(Sketcher.Constraint("Symmetric", 0, 2, 10, 2, -1, 1))
sketch5.addConstraint(Sketcher.Constraint("Symmetric", 6, 2, 12, 2, -1, 1))
sketch5.addConstraint(Sketcher.Constraint("Symmetric", 4, 2, 14, 2, -1, 1))
sketch5.addConstraint(Sketcher.Constraint("Horizontal", 1, 2, 8, 2))
sketch5.addConstraint(Sketcher.Constraint("Vertical", 7, 2, 12, 2))
sketch5.addConstraint(Sketcher.Constraint("Equal", 15, 0))
sketch5.addConstraint(Sketcher.Constraint("Equal", 11, 4))
sketch5.addConstraint(Sketcher.Constraint("DistanceX", -1, 1, 1, 2, 7.5))
sketch5.addConstraint(Sketcher.Constraint("DistanceY", 4, 2, -1, 1, 7.5))
sketch5.addConstraint(Sketcher.Constraint("DistanceX", 5, 1, 5, 2, 1.651))
sketch5.addConstraint(Sketcher.Constraint("DistanceX", 1, 1, 1, 2, 5.152935))
pocket4 = body.newObject("PartDesign::Pocket", "Pocket003")
pocket4.Profile = sketch5
pocket4.Type = "ThroughAll"
doc.recompute()

fillet7 = body.newObject("PartDesign::Fillet", "Fillet006")
fillet7.Base = (pocket4, edges_at(pocket4, [
    (0.826, -2.935, 0),
    (-0.826, -2.935, 0),
    (0.826, -2.347, 0),
    (-0.826, -2.347, 0),
    (2.935, 0.826, 0),
    (2.935, -0.826, 0),
    (2.347, 0.826, 0),
    (2.347, -0.826, 0),
    (-2.935, -0.826, 0),
    (-2.935, 0.826, 0),
    (-2.347, -0.826, 0),
    (-2.347, 0.826, 0),
    (-0.826, 2.935, 0),
    (0.826, 2.935, 0),
    (-0.826, 2.347, 0),
    (0.826, 2.347, 0),
]))
fillet7.Radius = 0.2

doc.recompute()
